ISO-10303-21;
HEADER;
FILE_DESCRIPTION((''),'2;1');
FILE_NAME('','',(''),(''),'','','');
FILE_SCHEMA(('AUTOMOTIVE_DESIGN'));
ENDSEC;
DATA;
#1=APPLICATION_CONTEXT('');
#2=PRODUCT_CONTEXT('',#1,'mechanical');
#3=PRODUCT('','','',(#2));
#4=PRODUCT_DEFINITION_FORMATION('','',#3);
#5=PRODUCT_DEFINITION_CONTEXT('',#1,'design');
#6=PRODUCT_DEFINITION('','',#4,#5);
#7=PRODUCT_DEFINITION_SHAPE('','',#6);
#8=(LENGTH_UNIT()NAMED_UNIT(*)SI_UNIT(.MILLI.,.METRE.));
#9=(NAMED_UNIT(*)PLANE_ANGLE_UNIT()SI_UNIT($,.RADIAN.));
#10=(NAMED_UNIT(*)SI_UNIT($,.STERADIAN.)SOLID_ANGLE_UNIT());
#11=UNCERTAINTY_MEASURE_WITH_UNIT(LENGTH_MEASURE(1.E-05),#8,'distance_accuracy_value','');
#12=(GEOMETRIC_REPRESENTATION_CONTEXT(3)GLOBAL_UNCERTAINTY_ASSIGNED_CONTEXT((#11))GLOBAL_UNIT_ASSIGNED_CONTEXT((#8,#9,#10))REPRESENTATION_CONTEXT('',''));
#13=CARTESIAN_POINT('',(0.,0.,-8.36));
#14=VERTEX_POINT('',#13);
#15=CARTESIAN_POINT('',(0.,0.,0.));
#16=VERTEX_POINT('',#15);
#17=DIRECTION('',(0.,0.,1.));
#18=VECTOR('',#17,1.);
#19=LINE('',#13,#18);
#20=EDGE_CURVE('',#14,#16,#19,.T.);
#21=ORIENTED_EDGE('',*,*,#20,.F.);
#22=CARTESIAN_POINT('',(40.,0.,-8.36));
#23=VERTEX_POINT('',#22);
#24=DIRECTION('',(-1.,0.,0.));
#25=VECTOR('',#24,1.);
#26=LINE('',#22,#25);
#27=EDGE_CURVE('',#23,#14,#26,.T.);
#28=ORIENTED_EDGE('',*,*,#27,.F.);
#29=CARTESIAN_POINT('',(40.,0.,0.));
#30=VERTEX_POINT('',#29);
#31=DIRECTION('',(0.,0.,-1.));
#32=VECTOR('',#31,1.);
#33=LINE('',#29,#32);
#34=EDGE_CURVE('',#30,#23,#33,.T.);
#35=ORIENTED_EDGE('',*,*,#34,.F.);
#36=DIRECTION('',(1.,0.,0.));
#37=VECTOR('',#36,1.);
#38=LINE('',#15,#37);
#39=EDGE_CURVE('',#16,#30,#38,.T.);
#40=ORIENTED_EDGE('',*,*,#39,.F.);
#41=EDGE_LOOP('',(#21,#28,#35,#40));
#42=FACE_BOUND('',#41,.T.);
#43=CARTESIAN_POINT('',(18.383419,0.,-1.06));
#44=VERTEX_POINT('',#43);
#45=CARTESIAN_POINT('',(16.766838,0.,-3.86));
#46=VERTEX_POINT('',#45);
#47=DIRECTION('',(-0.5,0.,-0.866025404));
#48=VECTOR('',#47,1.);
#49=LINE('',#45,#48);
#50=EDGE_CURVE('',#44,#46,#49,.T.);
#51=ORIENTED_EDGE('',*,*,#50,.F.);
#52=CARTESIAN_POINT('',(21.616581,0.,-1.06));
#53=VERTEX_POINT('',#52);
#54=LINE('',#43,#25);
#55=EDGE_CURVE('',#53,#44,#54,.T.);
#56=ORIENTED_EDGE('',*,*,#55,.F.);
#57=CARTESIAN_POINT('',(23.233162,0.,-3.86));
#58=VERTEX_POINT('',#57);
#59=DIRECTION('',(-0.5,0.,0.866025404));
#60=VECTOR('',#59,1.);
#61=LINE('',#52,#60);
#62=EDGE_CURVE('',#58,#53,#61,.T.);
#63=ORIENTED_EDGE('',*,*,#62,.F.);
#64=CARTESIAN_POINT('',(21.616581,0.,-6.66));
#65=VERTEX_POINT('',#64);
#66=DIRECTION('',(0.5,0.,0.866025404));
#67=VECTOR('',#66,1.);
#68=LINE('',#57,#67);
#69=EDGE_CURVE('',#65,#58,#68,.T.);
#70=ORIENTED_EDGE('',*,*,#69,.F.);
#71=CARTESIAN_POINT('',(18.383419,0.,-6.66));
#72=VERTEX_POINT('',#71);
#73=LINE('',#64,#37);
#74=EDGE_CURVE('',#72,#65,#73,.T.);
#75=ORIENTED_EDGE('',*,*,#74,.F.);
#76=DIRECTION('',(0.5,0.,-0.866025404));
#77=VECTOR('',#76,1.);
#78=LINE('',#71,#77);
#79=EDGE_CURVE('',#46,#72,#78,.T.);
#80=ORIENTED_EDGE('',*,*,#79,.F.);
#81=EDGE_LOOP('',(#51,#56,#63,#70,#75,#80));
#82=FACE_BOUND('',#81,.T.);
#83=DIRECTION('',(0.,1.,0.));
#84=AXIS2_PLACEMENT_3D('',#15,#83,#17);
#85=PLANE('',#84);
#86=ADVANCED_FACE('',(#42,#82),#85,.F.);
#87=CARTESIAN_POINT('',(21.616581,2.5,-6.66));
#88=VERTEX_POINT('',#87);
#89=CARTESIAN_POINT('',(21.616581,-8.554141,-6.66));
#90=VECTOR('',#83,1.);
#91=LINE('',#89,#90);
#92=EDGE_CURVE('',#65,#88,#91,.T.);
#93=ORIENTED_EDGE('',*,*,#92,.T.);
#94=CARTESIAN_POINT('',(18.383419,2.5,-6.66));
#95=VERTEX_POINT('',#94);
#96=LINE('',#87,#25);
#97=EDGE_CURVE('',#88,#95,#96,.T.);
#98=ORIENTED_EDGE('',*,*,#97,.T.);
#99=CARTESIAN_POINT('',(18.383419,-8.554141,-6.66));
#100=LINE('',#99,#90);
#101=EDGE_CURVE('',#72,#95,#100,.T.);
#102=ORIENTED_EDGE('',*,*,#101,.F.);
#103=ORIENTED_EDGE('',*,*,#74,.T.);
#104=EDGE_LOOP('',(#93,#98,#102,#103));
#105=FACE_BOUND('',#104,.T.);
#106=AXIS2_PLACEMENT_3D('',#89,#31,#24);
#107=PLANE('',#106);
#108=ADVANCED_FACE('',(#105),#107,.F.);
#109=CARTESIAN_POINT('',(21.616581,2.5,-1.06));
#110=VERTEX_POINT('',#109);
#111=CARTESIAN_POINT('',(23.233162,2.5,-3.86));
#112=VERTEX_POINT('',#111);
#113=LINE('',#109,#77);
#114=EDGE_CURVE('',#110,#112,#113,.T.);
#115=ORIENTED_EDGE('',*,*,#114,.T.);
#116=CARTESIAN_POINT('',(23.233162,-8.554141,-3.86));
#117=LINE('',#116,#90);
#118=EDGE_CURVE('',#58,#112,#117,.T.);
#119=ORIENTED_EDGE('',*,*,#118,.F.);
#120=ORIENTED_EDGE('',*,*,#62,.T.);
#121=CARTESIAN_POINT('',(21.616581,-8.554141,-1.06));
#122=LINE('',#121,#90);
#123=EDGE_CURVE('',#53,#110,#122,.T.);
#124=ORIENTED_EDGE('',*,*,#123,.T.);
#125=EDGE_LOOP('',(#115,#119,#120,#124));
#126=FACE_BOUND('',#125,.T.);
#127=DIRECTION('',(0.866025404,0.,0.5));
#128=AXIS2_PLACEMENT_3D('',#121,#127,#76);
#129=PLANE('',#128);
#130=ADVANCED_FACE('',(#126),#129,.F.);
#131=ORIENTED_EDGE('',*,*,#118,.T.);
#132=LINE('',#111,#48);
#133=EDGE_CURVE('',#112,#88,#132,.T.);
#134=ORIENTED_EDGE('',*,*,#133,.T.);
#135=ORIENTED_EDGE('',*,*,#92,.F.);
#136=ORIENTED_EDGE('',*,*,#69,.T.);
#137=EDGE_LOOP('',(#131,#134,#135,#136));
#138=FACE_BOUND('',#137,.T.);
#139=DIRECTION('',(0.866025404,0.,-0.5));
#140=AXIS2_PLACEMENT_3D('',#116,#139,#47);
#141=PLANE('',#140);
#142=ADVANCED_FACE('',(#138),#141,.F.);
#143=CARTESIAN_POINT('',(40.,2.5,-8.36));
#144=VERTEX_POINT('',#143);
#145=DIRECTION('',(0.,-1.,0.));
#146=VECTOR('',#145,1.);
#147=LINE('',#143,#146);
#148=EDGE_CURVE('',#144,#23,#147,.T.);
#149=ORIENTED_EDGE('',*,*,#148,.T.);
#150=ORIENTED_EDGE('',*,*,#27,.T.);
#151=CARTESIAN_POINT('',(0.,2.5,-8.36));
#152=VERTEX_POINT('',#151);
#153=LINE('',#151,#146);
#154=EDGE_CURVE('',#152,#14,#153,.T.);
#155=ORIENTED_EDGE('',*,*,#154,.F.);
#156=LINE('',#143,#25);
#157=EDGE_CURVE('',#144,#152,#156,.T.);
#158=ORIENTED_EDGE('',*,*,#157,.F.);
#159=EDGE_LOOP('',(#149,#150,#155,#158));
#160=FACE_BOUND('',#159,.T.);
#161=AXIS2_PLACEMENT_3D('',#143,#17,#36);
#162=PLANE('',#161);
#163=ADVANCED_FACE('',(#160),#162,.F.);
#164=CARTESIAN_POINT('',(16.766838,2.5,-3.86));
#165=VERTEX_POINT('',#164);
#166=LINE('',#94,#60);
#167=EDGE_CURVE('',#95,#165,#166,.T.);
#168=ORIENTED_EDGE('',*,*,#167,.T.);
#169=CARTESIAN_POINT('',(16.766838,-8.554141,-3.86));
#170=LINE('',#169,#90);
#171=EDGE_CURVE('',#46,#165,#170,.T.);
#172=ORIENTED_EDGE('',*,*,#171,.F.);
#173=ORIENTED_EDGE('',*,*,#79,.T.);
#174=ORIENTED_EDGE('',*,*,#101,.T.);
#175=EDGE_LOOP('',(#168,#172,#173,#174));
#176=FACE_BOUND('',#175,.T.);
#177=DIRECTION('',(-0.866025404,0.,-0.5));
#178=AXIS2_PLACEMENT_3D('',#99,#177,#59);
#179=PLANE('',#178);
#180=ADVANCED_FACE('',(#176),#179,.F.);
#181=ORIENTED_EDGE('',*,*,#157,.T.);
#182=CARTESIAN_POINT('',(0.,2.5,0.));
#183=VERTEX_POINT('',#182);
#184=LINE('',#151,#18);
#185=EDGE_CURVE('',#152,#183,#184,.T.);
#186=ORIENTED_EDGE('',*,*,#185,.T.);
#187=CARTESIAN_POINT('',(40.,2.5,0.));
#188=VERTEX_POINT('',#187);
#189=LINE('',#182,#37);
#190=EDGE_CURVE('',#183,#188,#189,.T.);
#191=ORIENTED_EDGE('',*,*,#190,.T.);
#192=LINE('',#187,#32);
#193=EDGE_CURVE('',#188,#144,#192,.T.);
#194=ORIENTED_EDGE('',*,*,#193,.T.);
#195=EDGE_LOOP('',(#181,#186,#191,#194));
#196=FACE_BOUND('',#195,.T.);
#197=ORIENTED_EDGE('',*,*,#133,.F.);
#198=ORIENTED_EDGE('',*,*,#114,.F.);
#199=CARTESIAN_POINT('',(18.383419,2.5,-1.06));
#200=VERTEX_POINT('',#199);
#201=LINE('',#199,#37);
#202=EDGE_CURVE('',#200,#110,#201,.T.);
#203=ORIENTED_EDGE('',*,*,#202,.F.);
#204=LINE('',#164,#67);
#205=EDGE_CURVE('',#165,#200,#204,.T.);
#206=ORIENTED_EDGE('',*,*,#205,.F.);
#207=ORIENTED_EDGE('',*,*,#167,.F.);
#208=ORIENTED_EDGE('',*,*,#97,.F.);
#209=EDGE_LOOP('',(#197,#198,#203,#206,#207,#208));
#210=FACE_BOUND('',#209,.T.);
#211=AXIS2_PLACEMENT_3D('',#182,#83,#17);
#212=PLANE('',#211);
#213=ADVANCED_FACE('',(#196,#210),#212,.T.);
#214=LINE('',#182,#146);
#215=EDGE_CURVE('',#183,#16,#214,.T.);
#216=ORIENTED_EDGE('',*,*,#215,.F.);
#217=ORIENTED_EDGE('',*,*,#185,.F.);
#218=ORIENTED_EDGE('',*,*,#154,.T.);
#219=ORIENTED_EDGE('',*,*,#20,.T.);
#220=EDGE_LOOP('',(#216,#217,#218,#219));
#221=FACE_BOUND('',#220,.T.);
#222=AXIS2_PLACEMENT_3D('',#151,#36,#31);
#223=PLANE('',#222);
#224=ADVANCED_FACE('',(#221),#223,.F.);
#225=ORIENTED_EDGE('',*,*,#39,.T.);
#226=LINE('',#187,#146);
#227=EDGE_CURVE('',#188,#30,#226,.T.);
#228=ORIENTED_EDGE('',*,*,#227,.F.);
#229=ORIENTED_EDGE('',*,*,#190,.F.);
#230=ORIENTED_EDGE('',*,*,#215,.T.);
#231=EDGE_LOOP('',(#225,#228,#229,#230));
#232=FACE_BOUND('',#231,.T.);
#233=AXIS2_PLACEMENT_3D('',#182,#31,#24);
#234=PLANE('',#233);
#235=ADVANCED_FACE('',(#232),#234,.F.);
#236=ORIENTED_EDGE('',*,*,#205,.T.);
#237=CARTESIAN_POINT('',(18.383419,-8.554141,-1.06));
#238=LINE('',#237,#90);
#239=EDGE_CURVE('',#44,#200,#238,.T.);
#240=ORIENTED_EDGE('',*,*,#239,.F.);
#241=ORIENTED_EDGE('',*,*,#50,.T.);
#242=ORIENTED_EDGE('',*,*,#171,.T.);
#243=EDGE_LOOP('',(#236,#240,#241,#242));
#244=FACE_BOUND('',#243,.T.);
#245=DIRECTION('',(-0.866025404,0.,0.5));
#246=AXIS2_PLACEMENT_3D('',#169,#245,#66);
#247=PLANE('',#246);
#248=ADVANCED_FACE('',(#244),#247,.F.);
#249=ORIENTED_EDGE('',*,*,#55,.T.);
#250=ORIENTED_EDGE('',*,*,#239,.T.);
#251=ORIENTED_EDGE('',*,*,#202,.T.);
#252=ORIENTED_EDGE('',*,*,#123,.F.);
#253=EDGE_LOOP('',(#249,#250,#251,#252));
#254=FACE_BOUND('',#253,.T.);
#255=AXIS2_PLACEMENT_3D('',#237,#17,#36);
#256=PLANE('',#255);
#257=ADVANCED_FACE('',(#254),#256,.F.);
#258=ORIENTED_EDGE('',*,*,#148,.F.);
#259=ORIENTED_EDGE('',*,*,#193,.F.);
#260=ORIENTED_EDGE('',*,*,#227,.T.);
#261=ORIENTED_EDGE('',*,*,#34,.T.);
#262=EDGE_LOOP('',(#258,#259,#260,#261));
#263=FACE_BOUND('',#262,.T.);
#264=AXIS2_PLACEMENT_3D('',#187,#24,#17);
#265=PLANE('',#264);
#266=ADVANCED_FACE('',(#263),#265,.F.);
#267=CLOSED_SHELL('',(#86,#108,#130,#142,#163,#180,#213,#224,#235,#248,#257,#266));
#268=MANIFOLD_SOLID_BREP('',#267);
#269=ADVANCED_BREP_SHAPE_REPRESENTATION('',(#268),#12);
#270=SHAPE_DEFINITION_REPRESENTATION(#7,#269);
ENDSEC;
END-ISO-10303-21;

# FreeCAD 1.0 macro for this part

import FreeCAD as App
import Part
import Sketcher

V = App.Vector
Q = App.Units.Quantity


def add_polygon(sketch, points):
    """Adds a closed chain of lines whose ends are joined by coincident constraints."""
    first, n = sketch.GeometryCount, len(points)
    for a, b in zip(points, points[1:] + points[:1]):
        sketch.addGeometry(Part.LineSegment(App.Vector(*a, 0), App.Vector(*b, 0)), False)
    for i in range(n):
        sketch.addConstraint(Sketcher.Constraint("Coincident", first + i, 2, first + (i + 1) % n, 1))

doc = App.newDocument("Part")
body = doc.addObject("PartDesign::Body", "Body")

# Sketch on XZ plane
sketch1 = body.newObject("Sketcher::SketchObject", "Sketch")
sketch1.AttachmentSupport = (doc.getObject("XZ_Plane"), [""])
sketch1.MapMode = "FlatFace"
add_polygon(sketch1, [(0, -8.36), (0, 0), (40, 0), (40, -8.36)])  # lines 0-3
sketch1.addConstraint([
    Sketcher.Constraint("Vertical", 0),
    Sketcher.Constraint("Horizontal", 1),
    Sketcher.Constraint("Vertical", 2),
    Sketcher.Constraint("Horizontal", 3),
    Sketcher.Constraint("Coincident", 0, 2, -1, 1),
    Sketcher.Constraint("DistanceX", 1, 1, 1, 2, Q("40 mm")),
    Sketcher.Constraint("DistanceY", 0, 1, 0, 2, Q("8.36 mm")),
])
pad1 = body.newObject("PartDesign::Pad", "Pad")
pad1.Profile = sketch1
pad1.Length = 2.5
pad1.Reversed = True

# Sketch on XZ plane
sketch2 = body.newObject("Sketcher::SketchObject", "Sketch001")
sketch2.AttachmentSupport = (doc.getObject("XZ_Plane"), [""])
sketch2.MapMode = "FlatFace"
sketch2.AttachmentOffset = App.Placement(V(0, 0, -2.5), App.Rotation())
add_polygon(sketch2, [(23.233162, -3.86), (21.616581, -6.66), (18.383419, -6.66), (16.766838, -3.86), (18.383419, -1.06), (21.616581, -1.06)])  # lines 0-5
sketch2.addConstraint([
    Sketcher.Constraint("Horizontal", 1),
    Sketcher.Constraint("Horizontal", 4),
    Sketcher.Constraint("Parallel", 0, 3),
    Sketcher.Constraint("Parallel", 2, 5),
    Sketcher.Constraint("Horizontal", 2, 2, 5, 2),
    Sketcher.Constraint("Vertical", 1, 2, 3, 2),
    Sketcher.Constraint("Vertical", 0, 2, 4, 2),
    Sketcher.Constraint("Angle", 0, Q("-120 deg")),
    Sketcher.Constraint("DistanceY", 1, 2, 2, 2, Q("2.8 mm")),
    Sketcher.Constraint("DistanceY", 0, 2, -1, 1, Q("6.66 mm")),
    Sketcher.Constraint("DistanceX", 1, 2, 1, 1, Q("3.233162 mm")),
    Sketcher.Constraint("DistanceX", -1, 1, 0, 2, Q("21.616581 mm")),
])
pocket1 = body.newObject("PartDesign::Pocket", "Pocket")
pocket1.Profile = sketch2
pocket1.Length = 2.5
pocket1.Reversed = True

doc.recompute()
